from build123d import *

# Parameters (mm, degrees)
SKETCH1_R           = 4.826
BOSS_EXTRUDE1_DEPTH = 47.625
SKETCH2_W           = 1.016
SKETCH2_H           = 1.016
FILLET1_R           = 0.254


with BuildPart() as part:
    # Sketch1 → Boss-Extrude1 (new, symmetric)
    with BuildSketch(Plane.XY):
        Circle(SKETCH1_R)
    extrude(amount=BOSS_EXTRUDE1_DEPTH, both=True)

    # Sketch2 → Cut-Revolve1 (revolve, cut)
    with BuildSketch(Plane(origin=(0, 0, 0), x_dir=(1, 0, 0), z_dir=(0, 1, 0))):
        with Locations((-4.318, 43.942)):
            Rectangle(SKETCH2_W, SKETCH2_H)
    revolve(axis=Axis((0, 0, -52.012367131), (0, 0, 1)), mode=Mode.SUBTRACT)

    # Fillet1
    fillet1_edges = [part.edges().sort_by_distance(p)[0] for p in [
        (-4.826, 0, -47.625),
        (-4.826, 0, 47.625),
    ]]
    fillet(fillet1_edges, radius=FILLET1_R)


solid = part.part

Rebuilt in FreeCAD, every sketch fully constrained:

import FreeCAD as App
import Part
import Sketcher
Q = App.Units.Quantity


def edges_at(feature, points):
    """Names of the edges that pass closest to the given points."""
    edges = feature.Shape.Edges
    near = lambda p: min(range(len(edges)), key=lambda i: edges[i].distToShape(Part.Vertex(*p))[0])
    return sorted({f"Edge{near(p) + 1}" for p in points})


def add_polygon(sketch, points):
    """Adds a closed chain of lines whose ends are joined by coincident constraints."""
    first, n = sketch.GeometryCount, len(points)
    for a, b in zip(points, points[1:] + points[:1]):
        sketch.addGeometry(Part.LineSegment(App.Vector(*a, 0), App.Vector(*b, 0)), False)
    for i in range(n):
        sketch.addConstraint(Sketcher.Constraint("Coincident", first + i, 2, first + (i + 1) % n, 1))

doc = App.newDocument("Part")
body = doc.addObject("PartDesign::Body", "Body")

# Sketch on XY plane
sketch1 = body.newObject("Sketcher::SketchObject", "Sketch")
sketch1.AttachmentSupport = (doc.getObject("XY_Plane"), [""])
sketch1.MapMode = "FlatFace"
sketch1.addGeometry(Part.Circle(App.Vector(0, 0, 0), App.Vector(0, 0, 1), 4.826), False)
sketch1.addConstraint(Sketcher.Constraint("Coincident", 0, 3, -1, 1))
sketch1.addConstraint(Sketcher.Constraint("Diameter", 0, Q("0.38 in")))
pad1 = body.newObject("PartDesign::Pad", "Pad")
pad1.Profile = sketch1
pad1.Length = Q("3.75 in")
pad1.Midplane = True

# Sketch on XZ plane
sketch2 = body.newObject("Sketcher::SketchObject", "Sketch001")
sketch2.AttachmentSupport = (doc.getObject("XZ_Plane"), [""])
sketch2.MapMode = "FlatFace"
add_polygon(sketch2, [(-4.826, -44.45), (-4.826, -43.434), (-3.81, -43.434), (-3.81, -44.45)])  # lines 0-3
sketch2.addConstraint(Sketcher.Constraint("Vertical", 0))
sketch2.addConstraint(Sketcher.Constraint("Horizontal", 1))
sketch2.addConstraint(Sketcher.Constraint("Vertical", 2))
sketch2.addConstraint(Sketcher.Constraint("Horizontal", 3))
sketch2.addConstraint(Sketcher.Constraint("Equal", 3, 0))
sketch2.addConstraint(Sketcher.Constraint("DistanceX", 1, 1, 1, 2, Q("0.04 in")))
sketch2.addConstraint(Sketcher.Constraint("DistanceX", 0, 2, -1, 1, Q("0.19 in")))
sketch2.addConstraint(Sketcher.Constraint("DistanceY", 0, 2, -1, 1, Q("1.71 in")))
groove = body.newObject("PartDesign::Groove", "Groove")
groove.Profile = sketch2
groove.ReferenceAxis = (sketch2, ["V_Axis"])
groove.Angle = 360
doc.recompute()

fillet = body.newObject("PartDesign::Fillet", "Fillet")
fillet.Base = (groove, edges_at(groove, [(-4.826, 0, -47.625), (-4.826, 0, 47.625)]))
fillet.Radius = Q("0.01 in")

doc.recompute()
